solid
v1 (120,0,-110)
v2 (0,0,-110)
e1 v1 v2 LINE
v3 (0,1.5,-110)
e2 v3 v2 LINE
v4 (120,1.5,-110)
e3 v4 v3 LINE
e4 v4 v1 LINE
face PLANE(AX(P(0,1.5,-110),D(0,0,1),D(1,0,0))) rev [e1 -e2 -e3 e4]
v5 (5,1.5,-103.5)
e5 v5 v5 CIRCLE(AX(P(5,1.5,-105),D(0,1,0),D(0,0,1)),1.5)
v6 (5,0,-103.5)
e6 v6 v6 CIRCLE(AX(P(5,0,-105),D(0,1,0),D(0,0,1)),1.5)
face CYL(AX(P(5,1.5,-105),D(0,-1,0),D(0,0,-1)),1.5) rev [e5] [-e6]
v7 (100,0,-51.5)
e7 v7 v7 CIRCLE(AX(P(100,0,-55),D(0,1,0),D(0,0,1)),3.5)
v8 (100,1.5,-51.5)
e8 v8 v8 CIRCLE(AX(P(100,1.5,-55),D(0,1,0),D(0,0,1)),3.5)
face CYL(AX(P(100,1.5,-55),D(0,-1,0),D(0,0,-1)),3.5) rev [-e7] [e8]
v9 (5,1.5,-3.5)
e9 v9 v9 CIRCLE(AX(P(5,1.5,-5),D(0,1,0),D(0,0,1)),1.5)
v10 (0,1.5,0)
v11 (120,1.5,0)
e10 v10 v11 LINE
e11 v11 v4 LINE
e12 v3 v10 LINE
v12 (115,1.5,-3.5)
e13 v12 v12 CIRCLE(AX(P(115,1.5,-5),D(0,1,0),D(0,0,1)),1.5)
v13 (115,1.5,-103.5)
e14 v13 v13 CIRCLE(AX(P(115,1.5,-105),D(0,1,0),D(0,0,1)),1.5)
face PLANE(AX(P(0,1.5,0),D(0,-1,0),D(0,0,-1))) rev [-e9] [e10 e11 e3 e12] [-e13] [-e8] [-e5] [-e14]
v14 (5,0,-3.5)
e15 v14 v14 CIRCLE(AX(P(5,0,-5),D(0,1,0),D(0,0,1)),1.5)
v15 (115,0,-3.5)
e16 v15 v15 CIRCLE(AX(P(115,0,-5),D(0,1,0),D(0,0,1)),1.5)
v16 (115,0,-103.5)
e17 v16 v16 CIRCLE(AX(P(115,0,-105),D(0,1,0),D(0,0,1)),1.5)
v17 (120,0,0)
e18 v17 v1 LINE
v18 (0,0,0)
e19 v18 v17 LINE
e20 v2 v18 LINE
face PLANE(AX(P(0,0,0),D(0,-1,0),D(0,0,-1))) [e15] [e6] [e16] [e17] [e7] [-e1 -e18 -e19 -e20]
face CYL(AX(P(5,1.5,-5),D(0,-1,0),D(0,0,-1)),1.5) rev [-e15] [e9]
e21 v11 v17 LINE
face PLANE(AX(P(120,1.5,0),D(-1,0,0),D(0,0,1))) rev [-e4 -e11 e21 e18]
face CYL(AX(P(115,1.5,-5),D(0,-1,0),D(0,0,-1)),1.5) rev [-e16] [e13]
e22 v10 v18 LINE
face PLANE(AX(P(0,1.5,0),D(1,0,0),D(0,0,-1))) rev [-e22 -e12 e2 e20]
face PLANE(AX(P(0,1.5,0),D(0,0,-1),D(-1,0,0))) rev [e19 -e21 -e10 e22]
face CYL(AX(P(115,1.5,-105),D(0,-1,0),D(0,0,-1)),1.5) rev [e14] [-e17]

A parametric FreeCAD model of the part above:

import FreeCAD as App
import Part
import Sketcher


def add_polygon(sketch, points):
    """Adds a closed chain of lines whose ends are joined by coincident constraints."""
    first, n = sketch.GeometryCount, len(points)
    for a, b in zip(points, points[1:] + points[:1]):
        sketch.addGeometry(Part.LineSegment(App.Vector(*a, 0), App.Vector(*b, 0)), False)
    for i in range(n):
        sketch.addConstraint(Sketcher.Constraint("Coincident", first + i, 2, first + (i + 1) % n, 1))

doc = App.newDocument("Part")
body = doc.addObject("PartDesign::Body", "Body")

# Sketch on XZ plane
sketch1 = body.newObject("Sketcher::SketchObject", "Sketch")
sketch1.AttachmentSupport = (doc.getObject("XZ_Plane"), [""])
sketch1.MapMode = "FlatFace"
add_polygon(sketch1, [(0, -110), (0, 0), (120, 0), (120, -110)])  # lines 0-3
sketch1.addGeometry(Part.Circle(App.Vector(5, -5, 0), App.Vector(0, 0, 1), 1.5), False)  # 4
sketch1.addGeometry(Part.Circle(App.Vector(115, -5, 0), App.Vector(0, 0, 1), 1.5), False)  # 5
sketch1.addGeometry(Part.Circle(App.Vector(100, -55, 0), App.Vector(0, 0, 1), 3.5), False)  # 6
sketch1.addGeometry(Part.Circle(App.Vector(5, -105, 0), App.Vector(0, 0, 1), 1.5), False)  # 7
sketch1.addGeometry(Part.Circle(App.Vector(115, -105, 0), App.Vector(0, 0, 1), 1.5), False)  # 8
sketch1.addConstraint([
    Sketcher.Constraint("Vertical", 0),
    Sketcher.Constraint("Horizontal", 1),
    Sketcher.Constraint("Vertical", 2),
    Sketcher.Constraint("Horizontal", 3),
    Sketcher.Constraint("Coincident", 0, 2, -1, 1),
    Sketcher.Constraint("Equal", 4, 5),
    Sketcher.Constraint("Equal", 5, 7),
    Sketcher.Constraint("Equal", 7, 8),
    Sketcher.Constraint("Horizontal", 4, 3, 5, 3),
    Sketcher.Constraint("Horizontal", 7, 3, 8, 3),
    Sketcher.Constraint("Vertical", 4, 3, 7, 3),
    Sketcher.Constraint("Vertical", 5, 3, 8, 3),
    Sketcher.Constraint("Diameter", 4, 3.0),
    Sketcher.Constraint("Diameter", 6, 7.0),
    Sketcher.Constraint("DistanceX", 1, 1, 1, 2, 120.0),
    Sketcher.Constraint("DistanceY", 0, 1, 0, 2, 110.0),
    Sketcher.Constraint("DistanceX", -1, 1, 4, 3, 5.0),
    Sketcher.Constraint("DistanceY", 4, 3, -1, 1, 5.0),
    Sketcher.Constraint("DistanceX", -1, 1, 5, 3, 115.0),
    Sketcher.Constraint("DistanceX", -1, 1, 6, 3, 100.0),
    Sketcher.Constraint("DistanceY", 6, 3, -1, 1, 55.0),
    Sketcher.Constraint("DistanceY", 7, 3, -1, 1, 105.0),
])
pad1 = body.newObject("PartDesign::Pad", "Pad")
pad1.Profile = sketch1
pad1.Length = 1.5
pad1.Reversed = True

doc.recompute()
